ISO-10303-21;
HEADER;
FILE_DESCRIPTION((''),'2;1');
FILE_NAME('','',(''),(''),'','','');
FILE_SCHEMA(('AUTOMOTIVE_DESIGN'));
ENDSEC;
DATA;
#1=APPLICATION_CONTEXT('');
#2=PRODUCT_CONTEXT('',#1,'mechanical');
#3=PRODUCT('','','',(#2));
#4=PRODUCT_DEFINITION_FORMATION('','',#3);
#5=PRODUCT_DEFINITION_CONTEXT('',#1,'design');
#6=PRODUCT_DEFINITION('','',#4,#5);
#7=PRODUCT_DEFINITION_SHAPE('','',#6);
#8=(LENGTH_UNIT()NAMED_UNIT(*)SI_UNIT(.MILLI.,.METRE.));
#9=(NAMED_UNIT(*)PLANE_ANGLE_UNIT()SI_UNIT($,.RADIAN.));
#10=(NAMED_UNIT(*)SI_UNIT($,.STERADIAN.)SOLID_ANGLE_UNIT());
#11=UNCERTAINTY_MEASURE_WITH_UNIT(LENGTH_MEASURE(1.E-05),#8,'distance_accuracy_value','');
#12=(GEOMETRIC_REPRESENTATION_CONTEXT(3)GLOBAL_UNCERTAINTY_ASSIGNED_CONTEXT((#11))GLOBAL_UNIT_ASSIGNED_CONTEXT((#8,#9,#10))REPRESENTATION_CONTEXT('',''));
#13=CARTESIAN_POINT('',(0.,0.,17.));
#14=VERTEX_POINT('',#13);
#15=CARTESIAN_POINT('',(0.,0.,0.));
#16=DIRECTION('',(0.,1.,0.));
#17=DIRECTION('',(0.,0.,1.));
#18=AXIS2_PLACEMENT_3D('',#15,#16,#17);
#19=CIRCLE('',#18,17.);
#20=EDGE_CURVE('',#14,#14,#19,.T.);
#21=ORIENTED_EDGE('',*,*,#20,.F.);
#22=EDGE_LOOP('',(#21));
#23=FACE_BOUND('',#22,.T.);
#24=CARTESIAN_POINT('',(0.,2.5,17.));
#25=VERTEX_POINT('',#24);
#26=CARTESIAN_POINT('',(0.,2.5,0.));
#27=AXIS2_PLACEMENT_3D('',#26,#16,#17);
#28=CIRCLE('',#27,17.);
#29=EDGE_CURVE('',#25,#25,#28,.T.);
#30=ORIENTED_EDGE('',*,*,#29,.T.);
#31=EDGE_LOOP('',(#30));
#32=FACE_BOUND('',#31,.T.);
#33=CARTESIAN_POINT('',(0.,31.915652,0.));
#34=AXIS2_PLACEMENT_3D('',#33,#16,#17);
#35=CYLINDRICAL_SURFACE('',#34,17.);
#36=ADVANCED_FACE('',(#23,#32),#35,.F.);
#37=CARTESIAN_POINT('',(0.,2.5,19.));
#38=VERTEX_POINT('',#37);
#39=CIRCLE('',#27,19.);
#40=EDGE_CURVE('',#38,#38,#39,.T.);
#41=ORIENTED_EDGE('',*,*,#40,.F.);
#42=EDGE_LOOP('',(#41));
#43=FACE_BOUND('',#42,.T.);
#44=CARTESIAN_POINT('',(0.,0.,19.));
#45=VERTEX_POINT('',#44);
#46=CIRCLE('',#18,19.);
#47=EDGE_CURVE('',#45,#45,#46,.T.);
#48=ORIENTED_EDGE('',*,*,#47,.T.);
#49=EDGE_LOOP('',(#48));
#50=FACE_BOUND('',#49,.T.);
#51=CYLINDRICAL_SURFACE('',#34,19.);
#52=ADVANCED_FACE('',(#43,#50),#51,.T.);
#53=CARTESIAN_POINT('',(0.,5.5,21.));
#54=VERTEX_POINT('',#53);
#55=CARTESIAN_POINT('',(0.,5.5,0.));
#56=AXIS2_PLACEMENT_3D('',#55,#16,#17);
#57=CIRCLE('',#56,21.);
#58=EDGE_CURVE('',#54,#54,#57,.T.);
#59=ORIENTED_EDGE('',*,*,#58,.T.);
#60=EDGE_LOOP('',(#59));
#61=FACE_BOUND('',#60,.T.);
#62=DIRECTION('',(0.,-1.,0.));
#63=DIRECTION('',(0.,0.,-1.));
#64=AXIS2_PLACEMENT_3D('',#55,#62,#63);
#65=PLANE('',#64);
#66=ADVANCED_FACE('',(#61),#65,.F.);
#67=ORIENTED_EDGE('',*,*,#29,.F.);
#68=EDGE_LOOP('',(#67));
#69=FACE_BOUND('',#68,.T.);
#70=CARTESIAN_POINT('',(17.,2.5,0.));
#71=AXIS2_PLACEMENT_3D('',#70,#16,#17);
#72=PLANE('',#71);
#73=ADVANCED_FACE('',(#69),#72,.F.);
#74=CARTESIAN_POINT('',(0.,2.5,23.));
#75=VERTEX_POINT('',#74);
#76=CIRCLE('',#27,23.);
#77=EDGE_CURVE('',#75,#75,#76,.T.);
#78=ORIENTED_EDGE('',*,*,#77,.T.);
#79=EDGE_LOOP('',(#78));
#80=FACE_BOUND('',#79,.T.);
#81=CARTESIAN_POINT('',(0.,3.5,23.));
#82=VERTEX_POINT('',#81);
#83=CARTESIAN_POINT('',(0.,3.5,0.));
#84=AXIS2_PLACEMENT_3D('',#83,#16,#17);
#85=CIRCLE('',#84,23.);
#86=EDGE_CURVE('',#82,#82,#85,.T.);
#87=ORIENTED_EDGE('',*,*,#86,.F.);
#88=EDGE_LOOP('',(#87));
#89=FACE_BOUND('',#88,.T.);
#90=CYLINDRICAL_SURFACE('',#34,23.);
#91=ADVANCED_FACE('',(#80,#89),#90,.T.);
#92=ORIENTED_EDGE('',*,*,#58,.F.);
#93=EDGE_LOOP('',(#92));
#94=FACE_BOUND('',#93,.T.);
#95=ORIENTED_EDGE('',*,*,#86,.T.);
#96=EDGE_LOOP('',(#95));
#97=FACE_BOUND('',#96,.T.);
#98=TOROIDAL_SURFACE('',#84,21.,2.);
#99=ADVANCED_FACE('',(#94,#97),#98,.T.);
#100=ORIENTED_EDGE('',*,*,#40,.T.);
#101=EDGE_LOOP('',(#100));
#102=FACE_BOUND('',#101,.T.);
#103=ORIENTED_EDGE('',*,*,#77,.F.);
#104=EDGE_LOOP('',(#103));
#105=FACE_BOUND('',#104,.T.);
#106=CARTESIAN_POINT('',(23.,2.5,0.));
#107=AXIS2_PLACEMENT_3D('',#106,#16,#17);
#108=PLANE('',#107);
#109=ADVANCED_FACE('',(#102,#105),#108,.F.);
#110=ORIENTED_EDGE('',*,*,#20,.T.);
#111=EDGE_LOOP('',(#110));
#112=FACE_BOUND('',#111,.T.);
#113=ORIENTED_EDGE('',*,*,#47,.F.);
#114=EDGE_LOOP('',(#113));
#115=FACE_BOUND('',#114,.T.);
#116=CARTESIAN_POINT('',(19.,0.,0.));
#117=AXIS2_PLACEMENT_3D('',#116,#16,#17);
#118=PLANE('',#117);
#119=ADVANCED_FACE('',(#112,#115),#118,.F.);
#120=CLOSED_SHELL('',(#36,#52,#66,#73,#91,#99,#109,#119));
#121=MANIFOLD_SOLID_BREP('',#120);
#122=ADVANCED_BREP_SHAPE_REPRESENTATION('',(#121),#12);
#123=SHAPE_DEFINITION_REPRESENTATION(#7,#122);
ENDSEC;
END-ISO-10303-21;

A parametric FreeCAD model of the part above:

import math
import FreeCAD as App
import Part
import Sketcher

V = App.Vector

doc = App.newDocument("Part")
body = doc.addObject("PartDesign::Body", "Body")

# Sketch on XY plane
sketch1 = body.newObject("Sketcher::SketchObject", "Sketch")
sketch1.AttachmentSupport = (doc.getObject("XY_Plane"), [""])
sketch1.MapMode = "FlatFace"
sketch1.addGeometry([
    Part.LineSegment(V(21, 5.5, 0), V(0, 5.5, 0)),  # 0
    Part.LineSegment(V(0, 5.5, 0), V(0, 2.5, 0)),  # 1
    Part.LineSegment(V(0, 2.5, 0), V(17, 2.5, 0)),  # 2
    Part.LineSegment(V(17, 2.5, 0), V(17, 0, 0)),  # 3
    Part.LineSegment(V(17, 0, 0), V(19, 0, 0)),  # 4
    Part.LineSegment(V(19, 0, 0), V(19, 2.5, 0)),  # 5
    Part.LineSegment(V(19, 2.5, 0), V(23, 2.5, 0)),  # 6
    Part.LineSegment(V(23, 2.5, 0), V(23, 3.5, 0)),  # 7
    Part.ArcOfCircle(Part.Circle(V(21, 3.5, 0), V(0, 0, 1), 2), math.radians(0), math.radians(90)),  # 8
], False)
sketch1.addConstraint([
    Sketcher.Constraint("Coincident", 0, 2, 1, 1),
    Sketcher.Constraint("Coincident", 1, 2, 2, 1),
    Sketcher.Constraint("Coincident", 2, 2, 3, 1),
    Sketcher.Constraint("Coincident", 3, 2, 4, 1),
    Sketcher.Constraint("Coincident", 4, 2, 5, 1),
    Sketcher.Constraint("Coincident", 5, 2, 6, 1),
    Sketcher.Constraint("Coincident", 6, 2, 7, 1),
    Sketcher.Constraint("Tangent", 7, 2, 8, 1),
    Sketcher.Constraint("Tangent", 8, 2, 0, 1),
    Sketcher.Constraint("Horizontal", 0),
    Sketcher.Constraint("Vertical", 1),
    Sketcher.Constraint("Horizontal", 2),
    Sketcher.Constraint("Vertical", 3),
    Sketcher.Constraint("Horizontal", 4),
    Sketcher.Constraint("Vertical", 5),
    Sketcher.Constraint("Horizontal", 6),
    Sketcher.Constraint("Vertical", 7),
    Sketcher.Constraint("PointOnObject", 0, 2, -2),
    Sketcher.Constraint("PointOnObject", 3, 2, -1),
    Sketcher.Constraint("Horizontal", 2, 2, 5, 2),
    Sketcher.Constraint("Radius", 8, 2.0),
    Sketcher.Constraint("DistanceX", 0, 2, 0, 1, 21.0),
    Sketcher.Constraint("DistanceX", 2, 1, 2, 2, 17.0),
    Sketcher.Constraint("DistanceX", 4, 1, 4, 2, 2.0),
    Sketcher.Constraint("DistanceY", 1, 2, 1, 1, 3.0),
    Sketcher.Constraint("DistanceY", 3, 2, 3, 1, 2.5),
])
revolution = body.newObject("PartDesign::Revolution", "Revolution")
revolution.Profile = sketch1
revolution.ReferenceAxis = (sketch1, ["V_Axis"])
revolution.Angle = 360

doc.recompute()
